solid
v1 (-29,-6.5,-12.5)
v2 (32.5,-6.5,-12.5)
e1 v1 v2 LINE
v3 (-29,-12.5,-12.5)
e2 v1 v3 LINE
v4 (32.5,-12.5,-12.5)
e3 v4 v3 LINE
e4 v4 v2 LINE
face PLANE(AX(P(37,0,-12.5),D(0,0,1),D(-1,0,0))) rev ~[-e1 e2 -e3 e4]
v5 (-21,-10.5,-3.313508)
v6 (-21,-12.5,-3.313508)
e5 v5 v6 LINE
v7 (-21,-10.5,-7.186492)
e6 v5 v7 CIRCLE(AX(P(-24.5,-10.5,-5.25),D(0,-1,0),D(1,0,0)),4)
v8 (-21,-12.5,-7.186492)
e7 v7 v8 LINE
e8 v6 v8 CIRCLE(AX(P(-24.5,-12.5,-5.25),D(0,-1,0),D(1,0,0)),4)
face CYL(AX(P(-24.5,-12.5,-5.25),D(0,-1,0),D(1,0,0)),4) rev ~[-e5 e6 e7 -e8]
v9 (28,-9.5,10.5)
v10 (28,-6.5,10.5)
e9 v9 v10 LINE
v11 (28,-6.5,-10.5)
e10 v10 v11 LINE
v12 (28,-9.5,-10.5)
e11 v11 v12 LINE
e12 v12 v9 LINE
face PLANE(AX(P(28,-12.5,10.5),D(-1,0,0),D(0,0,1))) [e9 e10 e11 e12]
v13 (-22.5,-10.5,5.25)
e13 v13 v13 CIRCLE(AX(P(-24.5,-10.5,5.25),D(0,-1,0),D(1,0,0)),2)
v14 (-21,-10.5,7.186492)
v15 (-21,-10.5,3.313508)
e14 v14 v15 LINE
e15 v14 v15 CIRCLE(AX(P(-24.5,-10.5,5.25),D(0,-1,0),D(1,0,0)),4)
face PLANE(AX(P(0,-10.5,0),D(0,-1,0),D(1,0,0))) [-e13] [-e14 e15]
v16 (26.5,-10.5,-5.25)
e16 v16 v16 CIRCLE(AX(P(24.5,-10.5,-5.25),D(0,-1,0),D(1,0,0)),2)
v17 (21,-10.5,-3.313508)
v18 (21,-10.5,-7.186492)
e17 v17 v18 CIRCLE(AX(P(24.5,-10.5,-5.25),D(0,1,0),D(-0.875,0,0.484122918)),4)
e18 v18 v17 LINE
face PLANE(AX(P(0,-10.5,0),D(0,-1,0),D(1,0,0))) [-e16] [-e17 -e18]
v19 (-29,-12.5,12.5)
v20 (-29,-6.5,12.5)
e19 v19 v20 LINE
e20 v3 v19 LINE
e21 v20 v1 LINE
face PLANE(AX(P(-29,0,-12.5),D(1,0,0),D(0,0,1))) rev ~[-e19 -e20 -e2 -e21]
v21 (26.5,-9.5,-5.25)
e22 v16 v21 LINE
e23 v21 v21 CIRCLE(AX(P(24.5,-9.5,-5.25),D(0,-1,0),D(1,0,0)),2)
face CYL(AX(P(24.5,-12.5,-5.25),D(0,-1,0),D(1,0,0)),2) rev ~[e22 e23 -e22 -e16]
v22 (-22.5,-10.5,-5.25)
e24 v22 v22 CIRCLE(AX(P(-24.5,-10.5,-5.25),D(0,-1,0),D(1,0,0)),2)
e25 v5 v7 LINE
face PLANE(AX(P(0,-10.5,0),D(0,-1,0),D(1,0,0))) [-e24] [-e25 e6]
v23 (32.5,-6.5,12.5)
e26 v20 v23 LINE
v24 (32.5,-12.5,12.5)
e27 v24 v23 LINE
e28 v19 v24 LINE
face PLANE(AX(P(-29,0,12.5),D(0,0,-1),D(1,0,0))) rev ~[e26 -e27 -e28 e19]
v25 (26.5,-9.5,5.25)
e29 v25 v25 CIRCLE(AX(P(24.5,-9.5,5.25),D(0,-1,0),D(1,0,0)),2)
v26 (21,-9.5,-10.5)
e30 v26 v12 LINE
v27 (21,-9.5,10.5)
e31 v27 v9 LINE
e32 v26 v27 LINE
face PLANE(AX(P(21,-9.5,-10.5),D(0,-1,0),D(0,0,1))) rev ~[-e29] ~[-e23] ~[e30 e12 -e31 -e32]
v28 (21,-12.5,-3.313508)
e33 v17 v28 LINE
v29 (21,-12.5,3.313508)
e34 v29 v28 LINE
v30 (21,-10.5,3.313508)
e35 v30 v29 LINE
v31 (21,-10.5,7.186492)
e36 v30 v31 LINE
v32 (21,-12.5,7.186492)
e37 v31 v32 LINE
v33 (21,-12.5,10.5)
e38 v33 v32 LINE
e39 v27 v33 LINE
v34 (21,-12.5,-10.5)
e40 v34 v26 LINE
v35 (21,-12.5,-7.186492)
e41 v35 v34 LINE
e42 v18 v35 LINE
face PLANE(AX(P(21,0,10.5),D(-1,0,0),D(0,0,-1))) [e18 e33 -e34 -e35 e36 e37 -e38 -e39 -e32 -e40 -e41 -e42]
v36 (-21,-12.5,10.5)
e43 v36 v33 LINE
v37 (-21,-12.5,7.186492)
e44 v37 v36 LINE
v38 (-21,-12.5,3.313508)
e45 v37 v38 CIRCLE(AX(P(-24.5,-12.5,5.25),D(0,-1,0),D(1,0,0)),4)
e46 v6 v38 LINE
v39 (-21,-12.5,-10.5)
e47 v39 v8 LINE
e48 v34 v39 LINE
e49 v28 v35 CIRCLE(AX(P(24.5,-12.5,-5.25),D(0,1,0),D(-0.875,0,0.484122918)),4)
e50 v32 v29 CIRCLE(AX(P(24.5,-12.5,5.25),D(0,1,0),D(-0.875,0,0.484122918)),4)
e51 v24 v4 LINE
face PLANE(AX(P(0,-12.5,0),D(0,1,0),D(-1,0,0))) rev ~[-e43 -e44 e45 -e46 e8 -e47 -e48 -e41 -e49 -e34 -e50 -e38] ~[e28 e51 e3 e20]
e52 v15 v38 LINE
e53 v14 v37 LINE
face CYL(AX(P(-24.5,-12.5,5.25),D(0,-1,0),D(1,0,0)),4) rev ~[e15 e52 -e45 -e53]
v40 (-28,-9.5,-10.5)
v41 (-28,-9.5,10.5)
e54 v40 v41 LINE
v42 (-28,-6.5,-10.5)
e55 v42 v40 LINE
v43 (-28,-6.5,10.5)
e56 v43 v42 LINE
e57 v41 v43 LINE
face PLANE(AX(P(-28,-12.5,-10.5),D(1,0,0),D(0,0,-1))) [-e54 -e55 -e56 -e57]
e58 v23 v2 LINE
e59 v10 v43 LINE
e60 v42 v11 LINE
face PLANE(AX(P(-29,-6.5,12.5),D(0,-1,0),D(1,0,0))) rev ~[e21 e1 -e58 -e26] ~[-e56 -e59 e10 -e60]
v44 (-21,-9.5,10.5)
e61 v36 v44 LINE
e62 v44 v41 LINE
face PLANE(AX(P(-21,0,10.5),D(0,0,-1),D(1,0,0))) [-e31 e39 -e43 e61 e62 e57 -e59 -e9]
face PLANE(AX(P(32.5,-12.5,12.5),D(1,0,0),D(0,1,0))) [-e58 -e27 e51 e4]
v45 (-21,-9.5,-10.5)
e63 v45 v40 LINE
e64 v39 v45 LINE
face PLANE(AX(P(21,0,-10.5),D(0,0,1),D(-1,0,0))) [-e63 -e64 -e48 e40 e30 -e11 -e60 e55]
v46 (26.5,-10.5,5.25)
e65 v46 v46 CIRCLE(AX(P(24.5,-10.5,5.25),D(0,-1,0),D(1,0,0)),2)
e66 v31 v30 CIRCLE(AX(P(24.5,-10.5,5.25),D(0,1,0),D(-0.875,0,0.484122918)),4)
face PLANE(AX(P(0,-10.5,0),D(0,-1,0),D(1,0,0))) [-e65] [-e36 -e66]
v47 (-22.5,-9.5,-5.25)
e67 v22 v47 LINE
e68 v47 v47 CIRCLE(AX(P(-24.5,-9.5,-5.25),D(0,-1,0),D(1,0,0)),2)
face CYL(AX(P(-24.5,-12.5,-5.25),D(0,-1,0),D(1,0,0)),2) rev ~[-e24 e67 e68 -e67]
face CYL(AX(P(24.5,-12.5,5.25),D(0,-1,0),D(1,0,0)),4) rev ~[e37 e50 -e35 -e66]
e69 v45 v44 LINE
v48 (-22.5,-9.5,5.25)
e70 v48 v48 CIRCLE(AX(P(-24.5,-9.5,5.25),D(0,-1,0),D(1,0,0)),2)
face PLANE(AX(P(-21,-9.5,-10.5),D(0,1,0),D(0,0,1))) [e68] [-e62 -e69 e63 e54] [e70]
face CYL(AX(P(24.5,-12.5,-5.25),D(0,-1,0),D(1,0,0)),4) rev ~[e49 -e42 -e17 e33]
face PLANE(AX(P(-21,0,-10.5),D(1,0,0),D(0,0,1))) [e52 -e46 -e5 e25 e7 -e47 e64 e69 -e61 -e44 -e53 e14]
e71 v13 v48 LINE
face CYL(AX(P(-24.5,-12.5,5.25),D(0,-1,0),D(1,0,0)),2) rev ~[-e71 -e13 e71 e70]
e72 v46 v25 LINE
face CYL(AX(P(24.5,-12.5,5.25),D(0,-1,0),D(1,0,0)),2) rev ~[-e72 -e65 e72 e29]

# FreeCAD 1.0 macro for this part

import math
import FreeCAD as App
import Part
import Sketcher

V = App.Vector
Q = App.Units.Quantity

doc = App.newDocument("Part")
params = doc.addObject("Spreadsheet::Sheet", "Params")
for row, (alias, value) in enumerate([
    ("sketch1_width", "42 mm"),
    ("sketch1_height", "21 mm"),
    ("pad1_length", "25 mm"),
    ("sketch2_radius", "11 mm"),
    ("sketch2_width", "10 mm"),
    ("pad2_length", "5 mm"),
    ("sketch3_diameter", "3.5 mm"),
    ("sketch4_width", "3 mm"),
    ("sketch4_height", "21 mm"),
    ("pocket2_length", "7 mm"),
    ("sketch5_width", "3 mm"),
    ("sketch5_height", "21 mm"),
    ("pocket3_length", "7 mm"),
    ("sketch6_diameter", "6 mm"),
    ("sketch7_diameter", "3.5 mm"),
    ("sketch7_diameter2", "6 mm"),
    ("pad3_length", "18 mm"),
    ("sketch8_diameter", "6 mm"),
    ("pocket5_length", "3 mm"),
    ("sketch9_diameter", "4 mm"),
    ("sketch10_width", "20 mm"),
    ("sketch10_width2", "33 mm"),
    ("sketch10_height", "13 mm"),
    ("sketch11_height", "25 mm"),
    ("sketch12_height", "19 mm"),
    ("sketch12_width", "61.5 mm"),
    ("sketch13_diameter", "8 mm"),
    ("sketch13_diameter2", "4 mm"),
    ("pocket10_length", "2 mm"),
], start=1):
    params.set(f"A{row}", alias)
    params.set(f"B{row}", "=" + value)
    params.setAlias(f"B{row}", alias)

body = doc.addObject("PartDesign::Body", "Body")

# Sketch on XZ plane
sketch1 = body.newObject("Sketcher::SketchObject", "Sketch")
sketch1.AttachmentSupport = (doc.getObject("XZ_Plane"), [""])
sketch1.MapMode = "FlatFace"
sketch1.addGeometry([
    Part.LineSegment(V(-29, -12.5, 0), V(-29, 12.5, 0)),  # 0
    Part.LineSegment(V(-29, 12.5, 0), V(46.0993, 12.5, 0)),  # 1
    Part.LineSegment(V(46.0993, 12.5, 0), V(37, -12.5, 0)),  # 2
    Part.LineSegment(V(37, -12.5, 0), V(-29, -12.5, 0)),  # 3
    Part.LineSegment(V(21, 10.5, 0), V(-21, 10.5, 0)),  # 4
    Part.LineSegment(V(-21, 10.5, 0), V(-21, -10.5, 0)),  # 5
    Part.LineSegment(V(-21, -10.5, 0), V(21, -10.5, 0)),  # 6
    Part.LineSegment(V(21, -10.5, 0), V(21, 10.5, 0)),  # 7
], False)
sketch1.addConstraint([
    Sketcher.Constraint("Coincident", 0, 2, 1, 1),
    Sketcher.Constraint("Coincident", 1, 2, 2, 1),
    Sketcher.Constraint("Coincident", 2, 2, 3, 1),
    Sketcher.Constraint("Coincident", 3, 2, 0, 1),
    Sketcher.Constraint("Coincident", 4, 2, 5, 1),
    Sketcher.Constraint("Coincident", 5, 2, 6, 1),
    Sketcher.Constraint("Coincident", 6, 2, 7, 1),
    Sketcher.Constraint("Coincident", 7, 2, 4, 1),
    Sketcher.Constraint("Vertical", 0),
    Sketcher.Constraint("Horizontal", 1),
    Sketcher.Constraint("Horizontal", 3),
    Sketcher.Constraint("Horizontal", 4),
    Sketcher.Constraint("Vertical", 5),
    Sketcher.Constraint("Horizontal", 6),
    Sketcher.Constraint("Vertical", 7),
    Sketcher.Constraint("Symmetric", 4, 2, 6, 2, -1, 1),
    Sketcher.Constraint("DistanceX", 4, 2, 4, 1, 42.0),
    Sketcher.Constraint("DistanceY", 5, 2, 5, 1, 21.0),
    Sketcher.Constraint("DistanceX", 0, 2, 4, 2, 8.0),
    Sketcher.Constraint("DistanceY", 4, 2, 0, 2, 2.0),
    Sketcher.Constraint("DistanceY", 3, 2, 5, 2, 2.0),
    Sketcher.Constraint("DistanceX", 6, 2, 2, 2, 16.0),
    Sketcher.Constraint("Angle", 2, Q("-110 deg")),
])
sketch1.setExpression("Constraints[16]", "Params.sketch1_width")
sketch1.setExpression("Constraints[17]", "Params.sketch1_height")
pad1 = body.newObject("PartDesign::Pad", "Pad")
pad1.Profile = sketch1
pad1.setExpression("Length", "Params.pad1_length")
pad1.Midplane = True

# Sketch on an angled plane
sketch2 = body.newObject("Sketcher::SketchObject", "Sketch001")
sketch2.Placement = App.Placement(V(37, -12.5, -12.5), App.Rotation(V(-0.342020143, 0, -0.939692621), V(0, 1, 0), V(0.939692621, 0, -0.342020143), "ZXY"))
sketch2.addGeometry([
    Part.ArcOfCircle(Part.Circle(V(-13.3022, 12.5, 0), V(0, 0, 1), 11.000037), math.radians(117.035595), math.radians(242.964405)),
    Part.LineSegment(V(-18.3022, 2.702, 0), V(-8.3022, 2.702, 0)),
    Part.ArcOfCircle(Part.Circle(V(-13.3022, 12.5, 0), V(0, 0, 1), 11.000037), math.radians(-62.964405), math.radians(62.964405)),
    Part.LineSegment(V(-8.3022, 22.298, 0), V(-18.3022, 22.298, 0)),
], False)
sketch2.addConstraint([
    Sketcher.Constraint("Coincident", 0, 2, 1, 1),
    Sketcher.Constraint("Coincident", 1, 2, 2, 1),
    Sketcher.Constraint("Coincident", 2, 2, 3, 1),
    Sketcher.Constraint("Coincident", 3, 2, 0, 1),
    Sketcher.Constraint("Horizontal", 1),
    Sketcher.Constraint("Horizontal", 3),
    Sketcher.Constraint("Coincident", 2, 3, 0, 3),
    Sketcher.Constraint("Equal", 0, 2),
    Sketcher.Constraint("Vertical", 1, 2, 2, 2),
    Sketcher.Constraint("Radius", 0, 11.0),
    Sketcher.Constraint("DistanceX", 1, 1, 1, 2, 10.0),
    Sketcher.Constraint("DistanceY", -1, 1, 0, 3, 12.5),
    Sketcher.Constraint("DistanceX", 0, 3, -1, 1, 13.3022),
])
sketch2.setExpression("Constraints[9]", "Params.sketch2_radius")
sketch2.setExpression("Constraints[10]", "Params.sketch2_width")
pad2 = body.newObject("PartDesign::Pad", "Pad001")
pad2.Profile = sketch2
pad2.setExpression("Length", "Params.pad2_length")

# Sketch on XZ plane
sketch3 = body.newObject("Sketcher::SketchObject", "Sketch002")
sketch3.AttachmentSupport = (doc.getObject("XZ_Plane"), [""])
sketch3.MapMode = "FlatFace"
sketch3.AttachmentOffset = App.Placement(V(0, 0, 9.798), App.Rotation())
sketch3.addGeometry(Part.Circle(V(43.898832, -0.855087, 0), V(0, 0, 1), 1.75), False)
sketch3.addConstraint([
    Sketcher.Constraint("Diameter", 0, 3.5),
    Sketcher.Constraint("DistanceY", 0, 3, -1, 1, 0.855),
    Sketcher.Constraint("DistanceX", -1, 1, 0, 3, 43.8988),
])
sketch3.setExpression("Constraints[0]", "Params.sketch3_diameter")
pocket1 = body.newObject("PartDesign::Pocket", "Pocket")
pocket1.Profile = sketch3
pocket1.Type = "ThroughAll"

# Sketch on YZ plane
sketch4 = body.newObject("Sketcher::SketchObject", "Sketch003")
sketch4.AttachmentSupport = (doc.getObject("YZ_Plane"), [""])
sketch4.MapMode = "FlatFace"
sketch4.AttachmentOffset = App.Placement(V(0, 0, 21), App.Rotation())
sketch4.addGeometry([
    Part.LineSegment(V(-6.5, -10.5, 0), V(-9.5, -10.5, 0)),
    Part.LineSegment(V(-9.5, -10.5, 0), V(-9.5, 10.5, 0)),
    Part.LineSegment(V(-9.5, 10.5, 0), V(-6.5, 10.5, 0)),
    Part.LineSegment(V(-6.5, 10.5, 0), V(-6.5, -10.5, 0)),
], False)
sketch4.addConstraint([
    Sketcher.Constraint("Coincident", 0, 2, 1, 1),
    Sketcher.Constraint("Coincident", 1, 2, 2, 1),
    Sketcher.Constraint("Coincident", 2, 2, 3, 1),
    Sketcher.Constraint("Coincident", 3, 2, 0, 1),
    Sketcher.Constraint("Horizontal", 0),
    Sketcher.Constraint("Vertical", 1),
    Sketcher.Constraint("Horizontal", 2),
    Sketcher.Constraint("Vertical", 3),
    Sketcher.Constraint("DistanceX", 0, 2, 0, 1, 3.0),
    Sketcher.Constraint("DistanceY", 1, 1, 1, 2, 21.0),
    Sketcher.Constraint("DistanceX", 0, 2, -1, 1, 9.5),
    Sketcher.Constraint("DistanceY", 0, 2, -1, 1, 10.5),
])
sketch4.setExpression("Constraints[8]", "Params.sketch4_width")
sketch4.setExpression("Constraints[9]", "Params.sketch4_height")
pocket2 = body.newObject("PartDesign::Pocket", "Pocket001")
pocket2.Profile = sketch4
pocket2.setExpression("Length", "Params.pocket2_length")
pocket2.Reversed = True

# Sketch on YZ plane
sketch5 = body.newObject("Sketcher::SketchObject", "Sketch004")
sketch5.AttachmentSupport = (doc.getObject("YZ_Plane"), [""])
sketch5.MapMode = "FlatFace"
sketch5.AttachmentOffset = App.Placement(V(0, 0, -21), App.Rotation())
sketch5.addGeometry([
    Part.LineSegment(V(-6.5, -10.5, 0), V(-6.5, 10.5, 0)),
    Part.LineSegment(V(-6.5, 10.5, 0), V(-9.5, 10.5, 0)),
    Part.LineSegment(V(-9.5, 10.5, 0), V(-9.5, -10.5, 0)),
    Part.LineSegment(V(-9.5, -10.5, 0), V(-6.5, -10.5, 0)),
], False)
sketch5.addConstraint([
    Sketcher.Constraint("Coincident", 0, 2, 1, 1),
    Sketcher.Constraint("Coincident", 1, 2, 2, 1),
    Sketcher.Constraint("Coincident", 2, 2, 3, 1),
    Sketcher.Constraint("Coincident", 3, 2, 0, 1),
    Sketcher.Constraint("Vertical", 0),
    Sketcher.Constraint("Horizontal", 1),
    Sketcher.Constraint("Vertical", 2),
    Sketcher.Constraint("Horizontal", 3),
    Sketcher.Constraint("DistanceX", 1, 2, 1, 1, 3.0),
    Sketcher.Constraint("DistanceY", 0, 1, 0, 2, 21.0),
    Sketcher.Constraint("DistanceX", 0, 2, -1, 1, 6.5),
    Sketcher.Constraint("DistanceY", -1, 1, 0, 2, 10.5),
])
sketch5.setExpression("Constraints[8]", "Params.sketch5_width")
sketch5.setExpression("Constraints[9]", "Params.sketch5_height")
pocket3 = body.newObject("PartDesign::Pocket", "Pocket002")
pocket3.Profile = sketch5
pocket3.setExpression("Length", "Params.pocket3_length")

# Sketch on YZ plane
sketch6 = body.newObject("Sketcher::SketchObject", "Sketch005")
sketch6.AttachmentSupport = (doc.getObject("YZ_Plane"), [""])
sketch6.MapMode = "FlatFace"
sketch6.AttachmentOffset = App.Placement(V(0, 0, 21), App.Rotation())
sketch6.addGeometry(Part.Circle(V(0, 0, 0), V(0, 0, 1), 3), False)
sketch6.addConstraint([
    Sketcher.Constraint("Coincident", 0, 3, -1, 1),
    Sketcher.Constraint("Diameter", 0, 6.0),
])
sketch6.setExpression("Constraints[1]", "Params.sketch6_diameter")
pocket4 = body.newObject("PartDesign::Pocket", "Pocket003")
pocket4.Profile = sketch6
pocket4.Type = "ThroughAll"
pocket4.Reversed = True

# Sketch on YZ plane
sketch7 = body.newObject("Sketcher::SketchObject", "Sketch006")
sketch7.AttachmentSupport = (doc.getObject("YZ_Plane"), [""])
sketch7.MapMode = "FlatFace"
sketch7.AttachmentOffset = App.Placement(V(0, 0, 21), App.Rotation())
sketch7.addGeometry([
    Part.Circle(V(0, 0, 0), V(0, 0, 1), 3),
    Part.Circle(V(0, 0, 0), V(0, 0, 1), 1.75),
], False)
sketch7.addConstraint([
    Sketcher.Constraint("Coincident", 0, 3, -1, 1),
    Sketcher.Constraint("Coincident", 1, 3, -1, 1),
    Sketcher.Constraint("Diameter", 1, 3.5),
    Sketcher.Constraint("Diameter", 0, 6.0),
])
sketch7.setExpression("Constraints[2]", "Params.sketch7_diameter")
sketch7.setExpression("Constraints[3]", "Params.sketch7_diameter2")
pad3 = body.newObject("PartDesign::Pad", "Pad002")
pad3.Profile = sketch7
pad3.setExpression("Length", "Params.pad3_length")

# Sketch on YZ plane
sketch8 = body.newObject("Sketcher::SketchObject", "Sketch007")
sketch8.AttachmentSupport = (doc.getObject("YZ_Plane"), [""])
sketch8.MapMode = "FlatFace"
sketch8.AttachmentOffset = App.Placement(V(0, 0, 21), App.Rotation())
sketch8.addGeometry(Part.Circle(V(0, 0, 0), V(0, 0, 1), 3), False)
sketch8.addConstraint([
    Sketcher.Constraint("Coincident", 0, 3, -1, 1),
    Sketcher.Constraint("Diameter", 0, 6.0),
])
sketch8.setExpression("Constraints[1]", "Params.sketch8_diameter")
pocket5 = body.newObject("PartDesign::Pocket", "Pocket004")
pocket5.Profile = sketch8
pocket5.setExpression("Length", "Params.pocket5_length")
pocket5.Reversed = True

# Sketch on XZ plane
sketch9 = body.newObject("Sketcher::SketchObject", "Sketch008")
sketch9.AttachmentSupport = (doc.getObject("XZ_Plane"), [""])
sketch9.MapMode = "FlatFace"
sketch9.AttachmentOffset = App.Placement(V(0, 0, 12.5), App.Rotation())
sketch9.addGeometry([
    Part.Circle(V(-24.5, -5.25, 0), V(0, 0, 1), 2),
    Part.Circle(V(-24.5, 5.25, 0), V(0, 0, 1), 2),
    Part.Circle(V(24.5, -5.25, 0), V(0, 0, 1), 2),
    Part.Circle(V(24.5, 5.25, 0), V(0, 0, 1), 2),
], False)
sketch9.addConstraint([
    Sketcher.Constraint("Equal", 0, 1),
    Sketcher.Constraint("Equal", 1, 2),
    Sketcher.Constraint("Equal", 2, 3),
    Sketcher.Constraint("Symmetric", 1, 3, 2, 3, -1, 1),
    Sketcher.Constraint("Symmetric", 0, 3, 3, 3, -1, 1),
    Sketcher.Constraint("Symmetric", 0, 3, 2, 3, -2),
    Sketcher.Constraint("Diameter", 0, 4.0),
    Sketcher.Constraint("DistanceX", 0, 3, 2, 3, 49.0),
    Sketcher.Constraint("DistanceY", 0, 3, 1, 3, 10.5),
])
sketch9.setExpression("Constraints[6]", "Params.sketch9_diameter")
pocket6 = body.newObject("PartDesign::Pocket", "Pocket005")
pocket6.Profile = sketch9
pocket6.Type = "ThroughAll"

# Sketch on XY plane
sketch10 = body.newObject("Sketcher::SketchObject", "Sketch009")
sketch10.AttachmentSupport = (doc.getObject("XY_Plane"), [""])
sketch10.MapMode = "FlatFace"
sketch10.AttachmentOffset = App.Placement(V(0, 0, -12.5), App.Rotation())
sketch10.addGeometry([
    Part.LineSegment(V(-29, -0.5, 0), V(-29, 12.5, 0)),
    Part.LineSegment(V(-29, 12.5, 0), V(4, 12.5, 0)),
    Part.LineSegment(V(4, 12.5, 0), V(-9, -0.5, 0)),
    Part.LineSegment(V(-9, -0.5, 0), V(-29, -0.5, 0)),
], False)
sketch10.addConstraint([
    Sketcher.Constraint("Coincident", 0, 2, 1, 1),
    Sketcher.Constraint("Coincident", 1, 2, 2, 1),
    Sketcher.Constraint("Coincident", 2, 2, 3, 1),
    Sketcher.Constraint("Coincident", 3, 2, 0, 1),
    Sketcher.Constraint("Vertical", 0),
    Sketcher.Constraint("Horizontal", 1),
    Sketcher.Constraint("Horizontal", 3),
    Sketcher.Constraint("DistanceX", 3, 2, 3, 1, 20.0),
    Sketcher.Constraint("DistanceX", 1, 1, 1, 2, 33.0),
    Sketcher.Constraint("DistanceY", 0, 1, 0, 2, 13.0),
    Sketcher.Constraint("DistanceX", 0, 2, -1, 1, 29.0),
    Sketcher.Constraint("DistanceY", -1, 1, 0, 2, 12.5),
])
sketch10.setExpression("Constraints[7]", "Params.sketch10_width")
sketch10.setExpression("Constraints[8]", "Params.sketch10_width2")
sketch10.setExpression("Constraints[9]", "Params.sketch10_height")
pocket7 = body.newObject("PartDesign::Pocket", "Pocket006")
pocket7.Profile = sketch10
pocket7.Type = "ThroughAll"
pocket7.Reversed = True

# Sketch on XY plane
sketch11 = body.newObject("Sketcher::SketchObject", "Sketch010")
sketch11.AttachmentSupport = (doc.getObject("XY_Plane"), [""])
sketch11.MapMode = "FlatFace"
sketch11.AttachmentOffset = App.Placement(V(0, 0, 12.5), App.Rotation())
sketch11.addGeometry([
    Part.LineSegment(V(32.5, 12.5, 0), V(32.5, -12.5, 0)),
    Part.LineSegment(V(32.5, -12.5, 0), V(50.0103, -12.5, 0)),
    Part.LineSegment(V(50.0103, -12.5, 0), V(50.0103, 12.5, 0)),
    Part.LineSegment(V(50.0103, 12.5, 0), V(32.5, 12.5, 0)),
], False)
sketch11.addConstraint([
    Sketcher.Constraint("Coincident", 0, 2, 1, 1),
    Sketcher.Constraint("Coincident", 1, 2, 2, 1),
    Sketcher.Constraint("Coincident", 2, 2, 3, 1),
    Sketcher.Constraint("Coincident", 3, 2, 0, 1),
    Sketcher.Constraint("Vertical", 0),
    Sketcher.Constraint("Horizontal", 1),
    Sketcher.Constraint("Vertical", 2),
    Sketcher.Constraint("Horizontal", 3),
    Sketcher.Constraint("DistanceY", 0, 2, 0, 1, 25.0),
    Sketcher.Constraint("DistanceX", -1, 1, 0, 2, 32.5),
    Sketcher.Constraint("DistanceY", 0, 2, -1, 1, 12.5),
    Sketcher.Constraint("DistanceX", 1, 1, 1, 2, 17.5103),
])
sketch11.setExpression("Constraints[8]", "Params.sketch11_height")
pocket8 = body.newObject("PartDesign::Pocket", "Pocket007")
pocket8.Profile = sketch11
pocket8.Type = "ThroughAll"

# Sketch on XY plane
sketch12 = body.newObject("Sketcher::SketchObject", "Sketch011")
sketch12.AttachmentSupport = (doc.getObject("XY_Plane"), [""])
sketch12.MapMode = "FlatFace"
sketch12.AttachmentOffset = App.Placement(V(0, 0, 12.5), App.Rotation())
sketch12.addGeometry([
    Part.LineSegment(V(-29, 12.5, 0), V(-29, -6.5, 0)),
    Part.LineSegment(V(-29, -6.5, 0), V(32.5, -6.5, 0)),
    Part.LineSegment(V(32.5, -6.5, 0), V(32.5, 12.5, 0)),
    Part.LineSegment(V(32.5, 12.5, 0), V(-29, 12.5, 0)),
], False)
sketch12.addConstraint([
    Sketcher.Constraint("Coincident", 0, 2, 1, 1),
    Sketcher.Constraint("Coincident", 1, 2, 2, 1),
    Sketcher.Constraint("Coincident", 2, 2, 3, 1),
    Sketcher.Constraint("Coincident", 3, 2, 0, 1),
    Sketcher.Constraint("Vertical", 0),
    Sketcher.Constraint("Horizontal", 1),
    Sketcher.Constraint("Vertical", 2),
    Sketcher.Constraint("Horizontal", 3),
    Sketcher.Constraint("DistanceY", 0, 2, 0, 1, 19.0),
    Sketcher.Constraint("DistanceX", 1, 1, 1, 2, 61.5),
    Sketcher.Constraint("DistanceX", 0, 2, -1, 1, 29.0),
    Sketcher.Constraint("DistanceY", 0, 2, -1, 1, 6.5),
])
sketch12.setExpression("Constraints[8]", "Params.sketch12_height")
sketch12.setExpression("Constraints[9]", "Params.sketch12_width")
pocket9 = body.newObject("PartDesign::Pocket", "Pocket008")
pocket9.Profile = sketch12
pocket9.Type = "ThroughAll"

# Sketch on XZ plane
sketch13 = body.newObject("Sketcher::SketchObject", "Sketch012")
sketch13.AttachmentSupport = (doc.getObject("XZ_Plane"), [""])
sketch13.MapMode = "FlatFace"
sketch13.AttachmentOffset = App.Placement(V(0, 0, 12.5), App.Rotation())
sketch13.addGeometry([
    Part.Circle(V(-24.5, 5.25, 0), V(0, 0, 1), 4),  # 0
    Part.Circle(V(-24.5, 5.25, 0), V(0, 0, 1), 2),  # 1
    Part.Circle(V(-24.5, -5.25, 0), V(0, 0, 1), 4),  # 2
    Part.Circle(V(-24.5, -5.25, 0), V(0, 0, 1), 2),  # 3
    Part.Circle(V(24.5, 5.25, 0), V(0, 0, 1), 4),  # 4
    Part.Circle(V(24.5, 5.25, 0), V(0, 0, 1), 2),  # 5
    Part.Circle(V(24.5, -5.25, 0), V(0, 0, 1), 4),  # 6
    Part.Circle(V(24.5, -5.25, 0), V(0, 0, 1), 2),  # 7
], False)
sketch13.addConstraint([
    Sketcher.Constraint("Coincident", 1, 3, 0, 3),
    Sketcher.Constraint("Coincident", 3, 3, 2, 3),
    Sketcher.Constraint("Coincident", 5, 3, 4, 3),
    Sketcher.Constraint("Coincident", 7, 3, 6, 3),
    Sketcher.Constraint("Equal", 0, 2),
    Sketcher.Constraint("Equal", 1, 3),
    Sketcher.Constraint("Equal", 2, 4),
    Sketcher.Constraint("Equal", 3, 5),
    Sketcher.Constraint("Equal", 4, 6),
    Sketcher.Constraint("Equal", 5, 7),
    Sketcher.Constraint("Symmetric", 2, 3, 4, 3, -1, 1),
    Sketcher.Constraint("Symmetric", 0, 3, 6, 3, -1, 1),
    Sketcher.Constraint("Symmetric", 0, 3, 4, 3, -2),
    Sketcher.Constraint("Diameter", 0, 8.0),
    Sketcher.Constraint("Diameter", 1, 4.0),
    Sketcher.Constraint("DistanceX", 0, 3, 4, 3, 49.0),
    Sketcher.Constraint("DistanceY", 2, 3, 0, 3, 10.5),
])
sketch13.setExpression("Constraints[13]", "Params.sketch13_diameter")
sketch13.setExpression("Constraints[14]", "Params.sketch13_diameter2")
pocket10 = body.newObject("PartDesign::Pocket", "Pocket009")
pocket10.Profile = sketch13
pocket10.setExpression("Length", "Params.pocket10_length")

doc.recompute()
